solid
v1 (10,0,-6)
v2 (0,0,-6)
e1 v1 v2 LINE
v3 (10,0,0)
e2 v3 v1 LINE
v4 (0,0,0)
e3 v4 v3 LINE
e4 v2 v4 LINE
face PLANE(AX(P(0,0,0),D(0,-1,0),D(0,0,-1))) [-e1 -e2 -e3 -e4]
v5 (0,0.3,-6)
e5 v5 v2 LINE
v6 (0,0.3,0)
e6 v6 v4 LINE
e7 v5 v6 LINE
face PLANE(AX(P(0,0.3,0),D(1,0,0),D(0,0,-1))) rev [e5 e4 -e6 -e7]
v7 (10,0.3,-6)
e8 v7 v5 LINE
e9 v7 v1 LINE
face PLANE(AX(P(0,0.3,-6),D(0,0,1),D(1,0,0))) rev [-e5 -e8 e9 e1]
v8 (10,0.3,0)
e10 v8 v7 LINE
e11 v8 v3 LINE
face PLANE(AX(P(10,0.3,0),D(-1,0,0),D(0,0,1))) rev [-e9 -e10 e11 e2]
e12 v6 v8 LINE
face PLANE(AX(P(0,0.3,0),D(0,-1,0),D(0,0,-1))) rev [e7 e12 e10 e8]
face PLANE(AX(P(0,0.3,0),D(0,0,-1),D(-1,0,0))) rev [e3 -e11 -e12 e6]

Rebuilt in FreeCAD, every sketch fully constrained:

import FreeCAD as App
import Part
import Sketcher
from FreeCAD import Vector


def add_polygon(sketch, points):
    """Adds a closed chain of lines whose ends are joined by coincident constraints."""
    first, n = sketch.GeometryCount, len(points)
    for a, b in zip(points, points[1:] + points[:1]):
        sketch.addGeometry(Part.LineSegment(App.Vector(*a, 0), App.Vector(*b, 0)), False)
    for i in range(n):
        sketch.addConstraint(Sketcher.Constraint("Coincident", first + i, 2, first + (i + 1) % n, 1))

doc = App.newDocument("Part")
params = doc.addObject("Spreadsheet::Sheet", "Params")
for row, (alias, value) in enumerate([
    ("sketch1_width", "10 mm"),
    ("sketch1_height", "6 mm"),
    ("pad1_length", "0.3 mm"),
], start=1):
    params.set(f"A{row}", alias)
    params.set(f"B{row}", "=" + value)
    params.setAlias(f"B{row}", alias)

body = doc.addObject("PartDesign::Body", "Body")

# Sketch on XZ plane
sketch1 = doc.addObject("Sketcher::SketchObject", "Sketch")
body.addObject(sketch1)
sketch1.AttachmentSupport = (doc.XZ_Plane, [""])
sketch1.MapMode = "FlatFace"
add_polygon(sketch1, [(0, -6), (0, 0), (10, 0), (10, -6)])  # lines 0-3
sketch1.addConstraint(Sketcher.Constraint("Vertical", 0))
sketch1.addConstraint(Sketcher.Constraint("Horizontal", 1))
sketch1.addConstraint(Sketcher.Constraint("Vertical", 2))
sketch1.addConstraint(Sketcher.Constraint("Horizontal", 3))
sketch1.addConstraint(Sketcher.Constraint("Coincident", 0, 2, -1, 1))
sketch1.addConstraint(Sketcher.Constraint("DistanceX", 1, 1, 1, 2, 10.0))
sketch1.addConstraint(Sketcher.Constraint("DistanceY", 0, 1, 0, 2, 6.0))
sketch1.setExpression("Constraints[9]", "Params.sketch1_width")
sketch1.setExpression("Constraints[10]", "Params.sketch1_height")
pad1 = doc.addObject("PartDesign::Pad", "Pad")
body.addObject(pad1)
pad1.Profile = sketch1
pad1.setExpression("Length", "Params.pad1_length")
pad1.Reversed = True

doc.recompute()
